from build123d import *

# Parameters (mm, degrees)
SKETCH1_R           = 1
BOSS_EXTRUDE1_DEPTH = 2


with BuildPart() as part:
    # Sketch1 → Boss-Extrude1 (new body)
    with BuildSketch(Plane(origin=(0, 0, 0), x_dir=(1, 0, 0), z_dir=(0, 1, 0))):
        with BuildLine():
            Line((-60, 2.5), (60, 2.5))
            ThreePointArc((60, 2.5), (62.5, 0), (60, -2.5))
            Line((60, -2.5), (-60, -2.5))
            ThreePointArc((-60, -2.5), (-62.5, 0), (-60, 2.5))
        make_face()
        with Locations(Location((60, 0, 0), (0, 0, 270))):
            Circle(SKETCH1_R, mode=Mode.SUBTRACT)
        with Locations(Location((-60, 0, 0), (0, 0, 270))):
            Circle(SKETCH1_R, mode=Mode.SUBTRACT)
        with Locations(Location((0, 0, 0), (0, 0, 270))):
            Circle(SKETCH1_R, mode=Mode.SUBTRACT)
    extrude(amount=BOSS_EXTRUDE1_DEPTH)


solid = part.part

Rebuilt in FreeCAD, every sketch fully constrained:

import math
import FreeCAD as App
import Part
import Sketcher
Q = App.Units.Quantity

doc = App.newDocument("Part")
params = doc.addObject("Spreadsheet::Sheet", "Params")
for row, (alias, value) in enumerate([
    ("sketch1_diameter", "2 mm"),
    ("sketch1_radius", "2.5 mm"),
    ("sketch1_width", "120 mm"),
    ("pad1_length", "2 mm"),
], start=1):
    params.set(f"A{row}", alias)
    params.set(f"B{row}", "=" + value)
    params.setAlias(f"B{row}", alias)

body = doc.addObject("PartDesign::Body", "Body")

# Sketch on XZ plane
sketch1 = body.newObject("Sketcher::SketchObject", "Sketch")
sketch1.AttachmentSupport = (doc.getObject("XZ_Plane"), [""])
sketch1.MapMode = "FlatFace"
sketch1.addGeometry([
    Part.LineSegment(App.Vector(60, -2.5, 0), App.Vector(-60, -2.5, 0)),  # 0
    Part.ArcOfCircle(Part.Circle(App.Vector(-60, 0, 0), App.Vector(0, 0, 1), 2.5), math.radians(90), math.radians(270)),  # 1
    Part.LineSegment(App.Vector(-60, 2.5, 0), App.Vector(60, 2.5, 0)),  # 2
    Part.ArcOfCircle(Part.Circle(App.Vector(60, 0, 0), App.Vector(0, 0, 1), 2.5), math.radians(-90), math.radians(90)),  # 3
    Part.Circle(App.Vector(60, 0, 0), App.Vector(0, 0, 1), 1),  # 4
    Part.Circle(App.Vector(0, 0, 0), App.Vector(0, 0, 1), 1),  # 5
    Part.Circle(App.Vector(-60, 0, 0), App.Vector(0, 0, 1), 1),  # 6
], False)
sketch1.addConstraint([
    Sketcher.Constraint("Tangent", 0, 2, 1, 2),
    Sketcher.Constraint("Tangent", 1, 1, 2, 1),
    Sketcher.Constraint("Tangent", 2, 2, 3, 2),
    Sketcher.Constraint("Tangent", 3, 1, 0, 1),
    Sketcher.Constraint("Horizontal", 0),
    Sketcher.Constraint("Horizontal", 2),
    Sketcher.Constraint("Coincident", 5, 3, -1, 1),
    Sketcher.Constraint("Coincident", 4, 3, 3, 3),
    Sketcher.Constraint("Coincident", 6, 3, 1, 3),
    Sketcher.Constraint("Equal", 4, 5),
    Sketcher.Constraint("Equal", 5, 6),
    Sketcher.Constraint("Symmetric", 1, 3, 3, 3, -1, 1),
    Sketcher.Constraint("Diameter", 4, Q("2 mm")),
    Sketcher.Constraint("Radius", 1, Q("2.5 mm")),
    Sketcher.Constraint("DistanceX", 0, 2, 0, 1, Q("120 mm")),
])
sketch1.setExpression("Constraints[12]", "Params.sketch1_diameter")
sketch1.setExpression("Constraints[13]", "Params.sketch1_radius")
sketch1.setExpression("Constraints[14]", "Params.sketch1_width")
pad1 = body.newObject("PartDesign::Pad", "Pad")
pad1.Profile = sketch1
pad1.setExpression("Length", "Params.pad1_length")
pad1.Reversed = True

doc.recompute()
